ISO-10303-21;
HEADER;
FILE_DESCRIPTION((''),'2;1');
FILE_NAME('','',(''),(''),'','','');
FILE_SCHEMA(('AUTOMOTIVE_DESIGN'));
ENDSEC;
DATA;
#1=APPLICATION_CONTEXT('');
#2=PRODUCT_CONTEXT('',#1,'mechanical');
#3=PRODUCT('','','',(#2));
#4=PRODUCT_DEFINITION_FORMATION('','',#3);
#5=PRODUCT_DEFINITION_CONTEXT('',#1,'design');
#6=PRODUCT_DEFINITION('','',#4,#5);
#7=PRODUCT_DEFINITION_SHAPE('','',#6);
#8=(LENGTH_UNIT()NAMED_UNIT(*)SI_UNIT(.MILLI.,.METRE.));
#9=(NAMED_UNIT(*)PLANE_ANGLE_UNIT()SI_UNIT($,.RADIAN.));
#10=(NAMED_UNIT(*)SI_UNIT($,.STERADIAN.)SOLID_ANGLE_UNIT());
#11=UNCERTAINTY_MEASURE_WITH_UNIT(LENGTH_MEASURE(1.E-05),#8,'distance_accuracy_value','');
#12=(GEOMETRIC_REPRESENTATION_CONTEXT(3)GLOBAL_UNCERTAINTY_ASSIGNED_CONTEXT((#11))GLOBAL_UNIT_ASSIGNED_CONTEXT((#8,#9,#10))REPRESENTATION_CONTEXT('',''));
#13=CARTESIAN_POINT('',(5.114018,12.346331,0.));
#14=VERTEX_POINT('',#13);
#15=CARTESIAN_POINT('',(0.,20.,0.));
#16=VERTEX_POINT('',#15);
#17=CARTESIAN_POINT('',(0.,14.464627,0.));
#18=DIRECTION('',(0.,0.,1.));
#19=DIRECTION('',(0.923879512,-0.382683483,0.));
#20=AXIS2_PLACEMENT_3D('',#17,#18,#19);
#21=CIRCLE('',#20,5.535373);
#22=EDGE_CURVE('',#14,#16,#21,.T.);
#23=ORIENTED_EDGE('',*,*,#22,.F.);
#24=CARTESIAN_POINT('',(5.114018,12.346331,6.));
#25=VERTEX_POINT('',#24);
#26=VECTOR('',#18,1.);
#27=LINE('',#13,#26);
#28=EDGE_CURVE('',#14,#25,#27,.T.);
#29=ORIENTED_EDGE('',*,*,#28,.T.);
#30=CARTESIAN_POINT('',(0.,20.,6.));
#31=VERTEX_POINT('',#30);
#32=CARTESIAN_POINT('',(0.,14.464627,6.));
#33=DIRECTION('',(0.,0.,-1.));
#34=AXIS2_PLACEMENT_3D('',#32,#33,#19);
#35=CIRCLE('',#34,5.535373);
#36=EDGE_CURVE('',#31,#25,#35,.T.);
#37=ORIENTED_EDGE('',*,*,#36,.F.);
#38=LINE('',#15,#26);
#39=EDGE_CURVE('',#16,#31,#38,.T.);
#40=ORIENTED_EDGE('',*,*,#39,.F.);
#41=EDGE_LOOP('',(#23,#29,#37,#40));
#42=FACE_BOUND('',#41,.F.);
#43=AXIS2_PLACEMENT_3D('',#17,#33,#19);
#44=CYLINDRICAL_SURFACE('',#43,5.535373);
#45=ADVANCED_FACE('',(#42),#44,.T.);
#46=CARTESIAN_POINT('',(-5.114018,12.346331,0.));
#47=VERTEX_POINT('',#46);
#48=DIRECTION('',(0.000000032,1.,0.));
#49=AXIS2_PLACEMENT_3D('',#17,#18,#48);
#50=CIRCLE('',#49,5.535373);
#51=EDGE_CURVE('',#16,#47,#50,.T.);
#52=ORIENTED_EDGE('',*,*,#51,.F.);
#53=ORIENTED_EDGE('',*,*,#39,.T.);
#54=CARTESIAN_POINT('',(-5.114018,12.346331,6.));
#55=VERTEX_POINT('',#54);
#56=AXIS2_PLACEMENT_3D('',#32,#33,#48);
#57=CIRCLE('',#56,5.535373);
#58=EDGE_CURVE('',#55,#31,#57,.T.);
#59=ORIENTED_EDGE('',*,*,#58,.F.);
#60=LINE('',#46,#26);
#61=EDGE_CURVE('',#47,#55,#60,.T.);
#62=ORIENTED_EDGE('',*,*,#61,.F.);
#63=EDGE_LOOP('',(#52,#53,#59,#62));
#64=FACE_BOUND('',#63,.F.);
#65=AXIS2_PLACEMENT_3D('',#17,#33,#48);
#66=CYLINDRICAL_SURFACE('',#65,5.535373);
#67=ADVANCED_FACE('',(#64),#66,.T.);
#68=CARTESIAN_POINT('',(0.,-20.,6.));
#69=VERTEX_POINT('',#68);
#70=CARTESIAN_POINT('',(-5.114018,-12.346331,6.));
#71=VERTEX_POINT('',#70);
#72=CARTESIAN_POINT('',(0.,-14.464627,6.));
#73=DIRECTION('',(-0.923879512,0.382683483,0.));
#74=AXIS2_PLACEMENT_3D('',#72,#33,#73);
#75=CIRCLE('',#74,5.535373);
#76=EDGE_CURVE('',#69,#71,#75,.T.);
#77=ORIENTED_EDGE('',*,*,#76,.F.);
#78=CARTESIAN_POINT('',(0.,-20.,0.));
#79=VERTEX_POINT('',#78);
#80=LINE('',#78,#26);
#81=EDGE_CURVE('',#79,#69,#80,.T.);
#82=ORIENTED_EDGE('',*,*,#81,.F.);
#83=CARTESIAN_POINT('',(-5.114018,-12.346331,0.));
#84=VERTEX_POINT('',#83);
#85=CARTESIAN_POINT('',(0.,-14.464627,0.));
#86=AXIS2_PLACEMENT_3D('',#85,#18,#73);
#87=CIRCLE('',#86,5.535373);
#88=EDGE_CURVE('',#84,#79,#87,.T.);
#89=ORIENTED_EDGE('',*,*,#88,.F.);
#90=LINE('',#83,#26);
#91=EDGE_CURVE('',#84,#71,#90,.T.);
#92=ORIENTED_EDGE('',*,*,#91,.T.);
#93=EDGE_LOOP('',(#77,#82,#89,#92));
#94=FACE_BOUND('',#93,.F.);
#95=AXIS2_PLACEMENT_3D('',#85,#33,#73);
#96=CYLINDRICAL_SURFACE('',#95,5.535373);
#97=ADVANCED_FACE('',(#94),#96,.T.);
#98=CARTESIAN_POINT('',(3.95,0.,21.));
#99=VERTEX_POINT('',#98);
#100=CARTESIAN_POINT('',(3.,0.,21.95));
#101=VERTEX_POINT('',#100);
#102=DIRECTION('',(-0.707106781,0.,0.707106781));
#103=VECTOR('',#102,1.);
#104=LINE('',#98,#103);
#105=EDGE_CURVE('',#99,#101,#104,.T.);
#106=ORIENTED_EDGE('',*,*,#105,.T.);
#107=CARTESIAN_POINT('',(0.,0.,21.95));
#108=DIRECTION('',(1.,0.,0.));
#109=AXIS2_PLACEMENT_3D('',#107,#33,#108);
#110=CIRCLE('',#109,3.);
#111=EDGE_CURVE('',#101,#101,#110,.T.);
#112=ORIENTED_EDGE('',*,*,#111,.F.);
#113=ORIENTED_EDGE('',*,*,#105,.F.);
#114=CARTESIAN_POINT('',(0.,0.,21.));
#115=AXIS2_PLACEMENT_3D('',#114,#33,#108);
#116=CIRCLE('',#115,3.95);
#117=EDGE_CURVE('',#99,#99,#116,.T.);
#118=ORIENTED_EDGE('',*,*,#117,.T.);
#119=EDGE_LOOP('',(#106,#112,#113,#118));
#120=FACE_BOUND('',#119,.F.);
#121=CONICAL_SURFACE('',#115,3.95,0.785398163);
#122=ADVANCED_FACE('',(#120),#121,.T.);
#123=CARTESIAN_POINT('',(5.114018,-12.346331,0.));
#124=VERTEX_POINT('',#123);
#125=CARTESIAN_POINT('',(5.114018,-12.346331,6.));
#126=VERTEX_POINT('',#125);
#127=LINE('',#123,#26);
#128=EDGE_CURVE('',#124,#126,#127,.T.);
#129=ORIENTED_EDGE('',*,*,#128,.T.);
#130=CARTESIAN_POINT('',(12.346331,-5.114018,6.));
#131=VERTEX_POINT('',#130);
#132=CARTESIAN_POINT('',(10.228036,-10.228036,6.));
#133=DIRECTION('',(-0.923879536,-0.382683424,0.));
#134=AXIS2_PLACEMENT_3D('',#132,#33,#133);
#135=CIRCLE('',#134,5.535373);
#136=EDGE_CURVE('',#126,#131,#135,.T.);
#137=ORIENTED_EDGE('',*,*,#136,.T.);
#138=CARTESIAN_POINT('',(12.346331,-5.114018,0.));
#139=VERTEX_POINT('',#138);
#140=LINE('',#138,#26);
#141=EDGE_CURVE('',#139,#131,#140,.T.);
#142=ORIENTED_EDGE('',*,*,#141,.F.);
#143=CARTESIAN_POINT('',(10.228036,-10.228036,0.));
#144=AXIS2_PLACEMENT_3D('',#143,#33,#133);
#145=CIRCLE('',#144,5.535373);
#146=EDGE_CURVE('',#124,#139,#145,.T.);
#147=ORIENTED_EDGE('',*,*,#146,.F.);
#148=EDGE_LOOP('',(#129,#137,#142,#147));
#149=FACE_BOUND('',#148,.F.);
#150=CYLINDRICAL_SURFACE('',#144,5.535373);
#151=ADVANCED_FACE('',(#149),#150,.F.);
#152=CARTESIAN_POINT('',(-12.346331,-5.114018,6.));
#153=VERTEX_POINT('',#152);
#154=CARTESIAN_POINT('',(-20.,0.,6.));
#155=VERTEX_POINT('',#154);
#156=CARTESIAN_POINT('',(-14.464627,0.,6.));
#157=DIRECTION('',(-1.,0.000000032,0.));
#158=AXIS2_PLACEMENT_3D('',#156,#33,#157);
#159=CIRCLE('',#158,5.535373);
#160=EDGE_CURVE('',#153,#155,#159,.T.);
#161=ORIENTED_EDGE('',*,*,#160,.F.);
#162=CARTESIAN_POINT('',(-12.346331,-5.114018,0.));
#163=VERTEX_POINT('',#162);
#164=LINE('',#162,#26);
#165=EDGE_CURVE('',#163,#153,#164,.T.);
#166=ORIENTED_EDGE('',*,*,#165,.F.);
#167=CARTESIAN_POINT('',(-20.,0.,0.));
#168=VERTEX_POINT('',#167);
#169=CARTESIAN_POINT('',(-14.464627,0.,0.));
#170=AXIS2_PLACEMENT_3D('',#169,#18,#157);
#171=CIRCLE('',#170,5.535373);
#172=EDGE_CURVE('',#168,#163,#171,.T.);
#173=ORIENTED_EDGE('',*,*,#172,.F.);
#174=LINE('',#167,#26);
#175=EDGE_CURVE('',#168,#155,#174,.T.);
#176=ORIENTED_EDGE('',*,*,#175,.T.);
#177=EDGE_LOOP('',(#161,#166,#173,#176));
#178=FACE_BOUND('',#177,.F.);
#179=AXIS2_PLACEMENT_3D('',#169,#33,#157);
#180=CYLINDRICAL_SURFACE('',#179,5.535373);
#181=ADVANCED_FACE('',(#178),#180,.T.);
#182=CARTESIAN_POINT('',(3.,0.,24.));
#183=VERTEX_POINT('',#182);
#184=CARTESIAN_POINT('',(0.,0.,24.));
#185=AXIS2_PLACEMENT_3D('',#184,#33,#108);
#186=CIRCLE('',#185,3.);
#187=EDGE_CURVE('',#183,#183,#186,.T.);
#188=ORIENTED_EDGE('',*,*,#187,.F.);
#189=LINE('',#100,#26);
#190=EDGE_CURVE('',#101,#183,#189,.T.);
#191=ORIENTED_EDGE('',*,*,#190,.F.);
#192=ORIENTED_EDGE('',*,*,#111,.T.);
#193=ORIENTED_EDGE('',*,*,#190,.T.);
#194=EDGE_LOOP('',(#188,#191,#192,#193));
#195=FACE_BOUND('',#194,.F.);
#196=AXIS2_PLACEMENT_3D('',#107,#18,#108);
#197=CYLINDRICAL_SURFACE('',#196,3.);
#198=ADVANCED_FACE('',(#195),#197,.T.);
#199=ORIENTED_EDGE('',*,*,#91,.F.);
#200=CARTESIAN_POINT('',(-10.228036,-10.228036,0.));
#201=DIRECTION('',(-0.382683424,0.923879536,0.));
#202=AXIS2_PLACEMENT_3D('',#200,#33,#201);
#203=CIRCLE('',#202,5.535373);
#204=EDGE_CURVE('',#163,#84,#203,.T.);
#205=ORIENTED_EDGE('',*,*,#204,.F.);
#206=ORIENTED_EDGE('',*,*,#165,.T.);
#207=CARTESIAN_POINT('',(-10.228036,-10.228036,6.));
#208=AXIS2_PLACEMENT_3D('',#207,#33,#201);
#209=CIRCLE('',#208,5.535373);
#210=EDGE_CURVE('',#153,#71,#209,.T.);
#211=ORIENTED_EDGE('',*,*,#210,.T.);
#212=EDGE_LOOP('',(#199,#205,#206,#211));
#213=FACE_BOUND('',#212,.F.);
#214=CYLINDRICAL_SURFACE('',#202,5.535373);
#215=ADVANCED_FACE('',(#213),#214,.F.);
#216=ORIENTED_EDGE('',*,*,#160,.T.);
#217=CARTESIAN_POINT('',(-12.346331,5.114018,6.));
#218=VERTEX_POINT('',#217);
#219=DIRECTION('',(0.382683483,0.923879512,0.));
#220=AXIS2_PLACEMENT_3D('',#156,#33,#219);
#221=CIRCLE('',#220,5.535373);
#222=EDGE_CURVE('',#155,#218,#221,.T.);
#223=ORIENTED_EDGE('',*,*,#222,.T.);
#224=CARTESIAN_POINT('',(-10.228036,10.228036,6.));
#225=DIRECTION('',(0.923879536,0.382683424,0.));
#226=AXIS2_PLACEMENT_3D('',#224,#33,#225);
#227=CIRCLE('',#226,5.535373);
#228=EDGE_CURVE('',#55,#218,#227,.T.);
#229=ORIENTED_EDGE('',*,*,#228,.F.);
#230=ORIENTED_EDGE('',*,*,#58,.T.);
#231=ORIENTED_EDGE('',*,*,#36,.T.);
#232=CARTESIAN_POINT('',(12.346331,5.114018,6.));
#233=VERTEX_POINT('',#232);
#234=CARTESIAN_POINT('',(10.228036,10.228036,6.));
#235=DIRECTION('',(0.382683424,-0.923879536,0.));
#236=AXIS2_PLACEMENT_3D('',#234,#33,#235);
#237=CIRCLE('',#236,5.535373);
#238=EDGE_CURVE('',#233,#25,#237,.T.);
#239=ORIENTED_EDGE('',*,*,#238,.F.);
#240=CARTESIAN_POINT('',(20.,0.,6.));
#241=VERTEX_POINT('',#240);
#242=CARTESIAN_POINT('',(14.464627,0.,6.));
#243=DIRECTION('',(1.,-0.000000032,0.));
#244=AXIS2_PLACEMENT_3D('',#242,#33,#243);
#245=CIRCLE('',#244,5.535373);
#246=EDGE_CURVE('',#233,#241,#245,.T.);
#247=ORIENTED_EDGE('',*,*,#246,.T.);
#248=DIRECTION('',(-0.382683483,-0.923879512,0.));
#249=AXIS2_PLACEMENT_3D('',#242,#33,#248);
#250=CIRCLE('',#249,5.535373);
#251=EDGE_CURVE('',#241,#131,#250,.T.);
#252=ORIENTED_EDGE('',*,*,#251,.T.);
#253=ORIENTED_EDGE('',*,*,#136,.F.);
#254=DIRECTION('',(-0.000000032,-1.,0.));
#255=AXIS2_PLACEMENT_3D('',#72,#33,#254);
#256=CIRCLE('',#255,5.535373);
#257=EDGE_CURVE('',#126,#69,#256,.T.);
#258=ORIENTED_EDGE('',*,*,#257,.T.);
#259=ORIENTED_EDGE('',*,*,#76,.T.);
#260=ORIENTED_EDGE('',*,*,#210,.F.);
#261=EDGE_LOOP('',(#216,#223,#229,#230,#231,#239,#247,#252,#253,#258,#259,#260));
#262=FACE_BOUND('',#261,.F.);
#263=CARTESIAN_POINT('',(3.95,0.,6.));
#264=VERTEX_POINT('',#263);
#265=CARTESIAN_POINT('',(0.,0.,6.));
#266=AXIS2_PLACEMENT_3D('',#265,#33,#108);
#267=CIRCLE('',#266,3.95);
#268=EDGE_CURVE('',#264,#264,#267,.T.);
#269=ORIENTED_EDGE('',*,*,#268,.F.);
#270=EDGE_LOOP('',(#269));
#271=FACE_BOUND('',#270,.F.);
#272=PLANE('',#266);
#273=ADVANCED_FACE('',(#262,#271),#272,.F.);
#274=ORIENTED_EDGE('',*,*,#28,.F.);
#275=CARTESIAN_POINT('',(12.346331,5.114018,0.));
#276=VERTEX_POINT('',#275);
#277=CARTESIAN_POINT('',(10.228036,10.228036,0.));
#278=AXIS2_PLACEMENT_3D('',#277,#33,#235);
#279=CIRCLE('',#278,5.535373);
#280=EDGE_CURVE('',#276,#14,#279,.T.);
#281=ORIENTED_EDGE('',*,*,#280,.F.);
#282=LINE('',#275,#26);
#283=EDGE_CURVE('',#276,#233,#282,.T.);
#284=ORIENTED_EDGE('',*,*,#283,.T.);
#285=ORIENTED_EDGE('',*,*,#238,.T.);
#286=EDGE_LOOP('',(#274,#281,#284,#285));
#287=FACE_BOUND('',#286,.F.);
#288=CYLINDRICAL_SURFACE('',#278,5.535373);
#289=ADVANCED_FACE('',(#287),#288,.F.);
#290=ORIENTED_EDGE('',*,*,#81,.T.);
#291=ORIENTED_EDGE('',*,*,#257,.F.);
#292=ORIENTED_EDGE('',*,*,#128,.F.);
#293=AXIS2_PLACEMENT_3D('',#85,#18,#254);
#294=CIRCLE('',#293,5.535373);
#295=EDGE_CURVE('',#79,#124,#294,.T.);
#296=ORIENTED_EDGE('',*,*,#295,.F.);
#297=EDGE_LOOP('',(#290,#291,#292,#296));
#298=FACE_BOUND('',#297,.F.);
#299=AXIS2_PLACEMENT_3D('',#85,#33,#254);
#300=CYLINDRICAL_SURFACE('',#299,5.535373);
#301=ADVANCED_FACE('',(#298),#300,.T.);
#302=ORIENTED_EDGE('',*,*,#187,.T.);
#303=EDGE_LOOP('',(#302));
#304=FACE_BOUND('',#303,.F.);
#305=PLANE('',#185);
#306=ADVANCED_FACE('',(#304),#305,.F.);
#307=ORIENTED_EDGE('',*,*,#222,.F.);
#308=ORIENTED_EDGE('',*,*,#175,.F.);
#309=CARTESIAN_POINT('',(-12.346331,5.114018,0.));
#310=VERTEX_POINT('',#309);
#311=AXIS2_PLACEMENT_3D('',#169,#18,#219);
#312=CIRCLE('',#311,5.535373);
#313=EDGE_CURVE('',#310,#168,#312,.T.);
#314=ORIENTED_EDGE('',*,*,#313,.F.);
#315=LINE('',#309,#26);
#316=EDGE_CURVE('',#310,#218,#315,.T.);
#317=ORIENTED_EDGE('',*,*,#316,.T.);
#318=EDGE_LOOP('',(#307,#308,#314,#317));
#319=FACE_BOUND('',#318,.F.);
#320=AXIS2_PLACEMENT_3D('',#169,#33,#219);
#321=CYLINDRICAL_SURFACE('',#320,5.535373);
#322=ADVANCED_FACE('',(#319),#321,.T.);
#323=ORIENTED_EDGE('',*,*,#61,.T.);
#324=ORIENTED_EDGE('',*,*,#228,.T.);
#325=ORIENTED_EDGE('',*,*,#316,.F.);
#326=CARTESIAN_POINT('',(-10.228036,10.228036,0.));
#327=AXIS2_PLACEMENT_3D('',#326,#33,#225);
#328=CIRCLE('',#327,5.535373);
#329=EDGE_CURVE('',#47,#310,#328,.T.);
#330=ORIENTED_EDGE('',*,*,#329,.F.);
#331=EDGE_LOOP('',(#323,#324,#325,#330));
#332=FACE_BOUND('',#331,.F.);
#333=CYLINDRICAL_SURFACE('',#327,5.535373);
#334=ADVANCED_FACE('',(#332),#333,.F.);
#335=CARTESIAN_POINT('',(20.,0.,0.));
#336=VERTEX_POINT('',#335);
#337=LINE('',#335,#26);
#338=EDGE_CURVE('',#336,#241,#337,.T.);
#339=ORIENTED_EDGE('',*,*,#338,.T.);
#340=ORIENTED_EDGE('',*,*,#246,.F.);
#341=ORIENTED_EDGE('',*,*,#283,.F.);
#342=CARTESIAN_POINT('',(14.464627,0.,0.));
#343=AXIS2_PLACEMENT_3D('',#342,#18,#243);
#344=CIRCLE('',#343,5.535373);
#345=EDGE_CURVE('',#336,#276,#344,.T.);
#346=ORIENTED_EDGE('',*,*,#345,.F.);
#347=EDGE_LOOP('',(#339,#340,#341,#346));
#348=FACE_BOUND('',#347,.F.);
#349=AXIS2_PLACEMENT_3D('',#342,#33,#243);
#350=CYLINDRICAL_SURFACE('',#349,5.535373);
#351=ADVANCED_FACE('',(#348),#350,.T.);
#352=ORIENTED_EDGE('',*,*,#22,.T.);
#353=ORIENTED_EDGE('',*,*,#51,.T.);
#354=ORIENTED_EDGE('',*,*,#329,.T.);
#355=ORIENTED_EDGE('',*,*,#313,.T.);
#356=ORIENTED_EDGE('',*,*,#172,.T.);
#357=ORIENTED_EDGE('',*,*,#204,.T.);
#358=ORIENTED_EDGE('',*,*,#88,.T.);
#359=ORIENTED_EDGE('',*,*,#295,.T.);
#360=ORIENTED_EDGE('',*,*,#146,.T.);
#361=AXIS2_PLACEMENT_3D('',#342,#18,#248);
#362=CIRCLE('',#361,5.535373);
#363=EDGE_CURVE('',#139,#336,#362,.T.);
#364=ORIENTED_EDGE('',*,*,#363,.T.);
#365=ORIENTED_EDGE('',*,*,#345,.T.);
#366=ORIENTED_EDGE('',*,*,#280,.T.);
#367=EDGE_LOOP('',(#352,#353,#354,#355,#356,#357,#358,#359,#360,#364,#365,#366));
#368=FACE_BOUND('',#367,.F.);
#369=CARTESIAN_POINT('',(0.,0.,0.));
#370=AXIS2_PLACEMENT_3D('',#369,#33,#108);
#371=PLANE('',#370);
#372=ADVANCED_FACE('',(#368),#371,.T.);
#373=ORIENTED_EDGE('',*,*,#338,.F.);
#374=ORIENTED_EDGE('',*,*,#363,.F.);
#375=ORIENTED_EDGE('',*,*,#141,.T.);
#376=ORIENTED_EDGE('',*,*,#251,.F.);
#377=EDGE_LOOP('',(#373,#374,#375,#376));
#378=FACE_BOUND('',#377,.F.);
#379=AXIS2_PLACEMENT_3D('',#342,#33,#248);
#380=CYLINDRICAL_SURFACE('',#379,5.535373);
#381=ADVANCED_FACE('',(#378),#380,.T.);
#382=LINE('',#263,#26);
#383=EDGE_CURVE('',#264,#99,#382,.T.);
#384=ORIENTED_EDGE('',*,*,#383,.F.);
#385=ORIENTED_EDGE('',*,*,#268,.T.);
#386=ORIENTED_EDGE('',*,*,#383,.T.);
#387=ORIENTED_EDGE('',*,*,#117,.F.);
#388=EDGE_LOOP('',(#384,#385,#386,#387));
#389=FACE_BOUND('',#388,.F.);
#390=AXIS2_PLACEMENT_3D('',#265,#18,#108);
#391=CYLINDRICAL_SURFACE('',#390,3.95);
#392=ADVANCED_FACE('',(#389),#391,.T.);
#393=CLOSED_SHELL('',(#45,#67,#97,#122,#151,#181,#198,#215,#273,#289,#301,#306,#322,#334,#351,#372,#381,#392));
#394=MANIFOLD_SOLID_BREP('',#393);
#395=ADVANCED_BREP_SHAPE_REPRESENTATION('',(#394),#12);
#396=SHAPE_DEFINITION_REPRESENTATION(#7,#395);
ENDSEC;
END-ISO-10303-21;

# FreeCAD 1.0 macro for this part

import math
import FreeCAD as App
import Part
import Sketcher
Q = App.Units.Quantity

doc = App.newDocument("Part")
body = doc.addObject("PartDesign::Body", "Body")

# Sketch on XZ plane
sketch1 = body.newObject("Sketcher::SketchObject", "Sketch")
sketch1.AttachmentSupport = (doc.getObject("XZ_Plane"), [""])
sketch1.MapMode = "FlatFace"
sketch1.addGeometry([
    Part.LineSegment(App.Vector(3, 24, 0), App.Vector(0, 24, 0)),  # 0
    Part.LineSegment(App.Vector(0, 24, 0), App.Vector(0, 0, 0)),  # 1
    Part.LineSegment(App.Vector(0, 0, 0), App.Vector(20, 0, 0)),  # 2
    Part.LineSegment(App.Vector(20, 0, 0), App.Vector(20, 6, 0)),  # 3
    Part.LineSegment(App.Vector(20, 6, 0), App.Vector(4, 6, 0)),  # 4
    Part.LineSegment(App.Vector(4, 6, 0), App.Vector(4, 21, 0)),  # 5
    Part.LineSegment(App.Vector(4, 21, 0), App.Vector(3, 21.9, 0)),  # 6
    Part.LineSegment(App.Vector(3, 21.9, 0), App.Vector(3, 24, 0)),  # 7
], False)
sketch1.addConstraint([
    Sketcher.Constraint("Coincident", 0, 2, 1, 1),
    Sketcher.Constraint("Coincident", 1, 2, 2, 1),
    Sketcher.Constraint("Coincident", 2, 2, 3, 1),
    Sketcher.Constraint("Coincident", 3, 2, 4, 1),
    Sketcher.Constraint("Coincident", 4, 2, 5, 1),
    Sketcher.Constraint("Coincident", 5, 2, 6, 1),
    Sketcher.Constraint("Coincident", 6, 2, 7, 1),
    Sketcher.Constraint("Coincident", 7, 2, 0, 1),
    Sketcher.Constraint("Horizontal", 0),
    Sketcher.Constraint("Vertical", 1),
    Sketcher.Constraint("Horizontal", 2),
    Sketcher.Constraint("Vertical", 3),
    Sketcher.Constraint("Horizontal", 4),
    Sketcher.Constraint("Vertical", 5),
    Sketcher.Constraint("Vertical", 7),
    Sketcher.Constraint("Coincident", 1, 2, -1, 1),
    Sketcher.Constraint("DistanceX", 0, 2, 0, 1, Q("3 mm")),
    Sketcher.Constraint("DistanceX", 2, 1, 2, 2, Q("20 mm")),
    Sketcher.Constraint("DistanceY", 1, 2, 1, 1, Q("24 mm")),
    Sketcher.Constraint("DistanceY", 3, 1, 3, 2, Q("6 mm")),
    Sketcher.Constraint("DistanceY", 5, 1, 5, 2, Q("15 mm")),
    Sketcher.Constraint("Angle", 6, Q("135 deg")),
    Sketcher.Constraint("DistanceX", 4, 2, 4, 1, Q("16.05 mm")),
])
revolution = body.newObject("PartDesign::Revolution", "Revolution")
revolution.Profile = sketch1
revolution.ReferenceAxis = (sketch1, ["V_Axis"])
revolution.Angle = 360

# Sketch on XY plane
sketch2 = body.newObject("Sketcher::SketchObject", "Sketch001")
sketch2.AttachmentSupport = (doc.getObject("XY_Plane"), [""])
sketch2.MapMode = "FlatFace"
sketch2.addGeometry([
    Part.ArcOfCircle(Part.Circle(App.Vector(0, 0, 0), App.Vector(0, 0, 1), 20), math.radians(0), math.radians(90)),  # 0
    Part.ArcOfCircle(Part.Circle(App.Vector(14, 0, 0), App.Vector(0, 0, 1), 6), math.radians(0), math.radians(113)),  # 1
    Part.ArcOfCircle(Part.Circle(App.Vector(10, 10, 0), App.Vector(0, 0, 1), 6), math.radians(158), math.radians(292)),  # 2
    Part.ArcOfCircle(Part.Circle(App.Vector(0, 14, 0), App.Vector(0, 0, 1), 6), math.radians(-23), math.radians(90)),  # 3
    Part.ArcOfCircle(Part.Circle(App.Vector(14, 0, 0), App.Vector(0, 0, 1), 6), math.radians(-113), math.radians(0)),  # 4
    Part.ArcOfCircle(Part.Circle(App.Vector(0, 0, 0), App.Vector(0, 0, 1), 20), math.radians(-90), math.radians(0)),  # 5
    Part.ArcOfCircle(Part.Circle(App.Vector(0, -14, 0), App.Vector(0, 0, 1), 6), math.radians(-90), math.radians(23)),  # 6
    Part.ArcOfCircle(Part.Circle(App.Vector(10, -10, 0), App.Vector(0, 0, 1), 6), math.radians(68), math.radians(202)),  # 7
    Part.ArcOfCircle(Part.Circle(App.Vector(0, -14, 0), App.Vector(0, 0, 1), 6), math.radians(157), math.radians(270)),  # 8
    Part.ArcOfCircle(Part.Circle(App.Vector(0, 0, 0), App.Vector(0, 0, 1), 20), math.radians(180), math.radians(270)),  # 9
    Part.ArcOfCircle(Part.Circle(App.Vector(-14, 0, 0), App.Vector(0, 0, 1), 6), math.radians(180), math.radians(293)),  # 10
    Part.ArcOfCircle(Part.Circle(App.Vector(-10, -10, 0), App.Vector(0, 0, 1), 6), math.radians(-22), math.radians(112)),  # 11
    Part.ArcOfCircle(Part.Circle(App.Vector(0, 0, 0), App.Vector(0, 0, 1), 20), math.radians(90), math.radians(180)),  # 12
    Part.ArcOfCircle(Part.Circle(App.Vector(0, 14, 0), App.Vector(0, 0, 1), 6), math.radians(90), math.radians(203)),  # 13
    Part.ArcOfCircle(Part.Circle(App.Vector(-10, 10, 0), App.Vector(0, 0, 1), 6), math.radians(-112), math.radians(22)),  # 14
    Part.ArcOfCircle(Part.Circle(App.Vector(-14, 0, 0), App.Vector(0, 0, 1), 6), math.radians(67), math.radians(180)),  # 15
], False)
sketch2.addConstraint([
    Sketcher.Constraint("Tangent", 0, 1, 1, 1),
    Sketcher.Constraint("Tangent", 1, 2, 2, 2),
    Sketcher.Constraint("Tangent", 2, 1, 3, 1),
    Sketcher.Constraint("Tangent", 3, 2, 0, 2),
    Sketcher.Constraint("Tangent", 4, 2, 5, 2),
    Sketcher.Constraint("Tangent", 5, 1, 6, 1),
    Sketcher.Constraint("Tangent", 6, 2, 7, 2),
    Sketcher.Constraint("Tangent", 7, 1, 4, 1),
    Sketcher.Constraint("Tangent", 8, 2, 9, 2),
    Sketcher.Constraint("Tangent", 9, 1, 10, 1),
    Sketcher.Constraint("Tangent", 10, 2, 11, 2),
    Sketcher.Constraint("Tangent", 11, 1, 8, 1),
    Sketcher.Constraint("Tangent", 12, 1, 13, 1),
    Sketcher.Constraint("Tangent", 13, 2, 14, 2),
    Sketcher.Constraint("Tangent", 14, 1, 15, 1),
    Sketcher.Constraint("Tangent", 15, 2, 12, 2),
    Sketcher.Constraint("Coincident", 0, 3, -1, 1),
    Sketcher.Constraint("Coincident", 5, 3, -1, 1),
    Sketcher.Constraint("Coincident", 9, 3, -1, 1),
    Sketcher.Constraint("Coincident", 12, 3, -1, 1),
    Sketcher.Constraint("Coincident", 4, 3, 1, 3),
    Sketcher.Constraint("Coincident", 8, 3, 6, 3),
    Sketcher.Constraint("Coincident", 13, 3, 3, 3),
    Sketcher.Constraint("Coincident", 15, 3, 10, 3),
    Sketcher.Constraint("Equal", 1, 2),
    Sketcher.Constraint("Equal", 2, 3),
    Sketcher.Constraint("Equal", 3, 4),
    Sketcher.Constraint("Equal", 4, 6),
    Sketcher.Constraint("Equal", 6, 7),
    Sketcher.Constraint("Equal", 7, 8),
    Sketcher.Constraint("Equal", 8, 10),
    Sketcher.Constraint("Equal", 10, 11),
    Sketcher.Constraint("Equal", 9, 12),
    Sketcher.Constraint("Equal", 13, 14),
    Sketcher.Constraint("Symmetric", 2, 3, 11, 3, -1, 1),
    Sketcher.Constraint("Symmetric", 7, 3, 11, 3, -2),
    Sketcher.Constraint("Radius", 0, Q("19.999999 mm")),
    Sketcher.Constraint("Radius", 1, Q("5.535373 mm")),
])
pocket1 = body.newObject("PartDesign::Pocket", "Pocket")
pocket1.Profile = sketch2
pocket1.Type = "ThroughAll"
pocket1.Reversed = True

doc.recompute()
